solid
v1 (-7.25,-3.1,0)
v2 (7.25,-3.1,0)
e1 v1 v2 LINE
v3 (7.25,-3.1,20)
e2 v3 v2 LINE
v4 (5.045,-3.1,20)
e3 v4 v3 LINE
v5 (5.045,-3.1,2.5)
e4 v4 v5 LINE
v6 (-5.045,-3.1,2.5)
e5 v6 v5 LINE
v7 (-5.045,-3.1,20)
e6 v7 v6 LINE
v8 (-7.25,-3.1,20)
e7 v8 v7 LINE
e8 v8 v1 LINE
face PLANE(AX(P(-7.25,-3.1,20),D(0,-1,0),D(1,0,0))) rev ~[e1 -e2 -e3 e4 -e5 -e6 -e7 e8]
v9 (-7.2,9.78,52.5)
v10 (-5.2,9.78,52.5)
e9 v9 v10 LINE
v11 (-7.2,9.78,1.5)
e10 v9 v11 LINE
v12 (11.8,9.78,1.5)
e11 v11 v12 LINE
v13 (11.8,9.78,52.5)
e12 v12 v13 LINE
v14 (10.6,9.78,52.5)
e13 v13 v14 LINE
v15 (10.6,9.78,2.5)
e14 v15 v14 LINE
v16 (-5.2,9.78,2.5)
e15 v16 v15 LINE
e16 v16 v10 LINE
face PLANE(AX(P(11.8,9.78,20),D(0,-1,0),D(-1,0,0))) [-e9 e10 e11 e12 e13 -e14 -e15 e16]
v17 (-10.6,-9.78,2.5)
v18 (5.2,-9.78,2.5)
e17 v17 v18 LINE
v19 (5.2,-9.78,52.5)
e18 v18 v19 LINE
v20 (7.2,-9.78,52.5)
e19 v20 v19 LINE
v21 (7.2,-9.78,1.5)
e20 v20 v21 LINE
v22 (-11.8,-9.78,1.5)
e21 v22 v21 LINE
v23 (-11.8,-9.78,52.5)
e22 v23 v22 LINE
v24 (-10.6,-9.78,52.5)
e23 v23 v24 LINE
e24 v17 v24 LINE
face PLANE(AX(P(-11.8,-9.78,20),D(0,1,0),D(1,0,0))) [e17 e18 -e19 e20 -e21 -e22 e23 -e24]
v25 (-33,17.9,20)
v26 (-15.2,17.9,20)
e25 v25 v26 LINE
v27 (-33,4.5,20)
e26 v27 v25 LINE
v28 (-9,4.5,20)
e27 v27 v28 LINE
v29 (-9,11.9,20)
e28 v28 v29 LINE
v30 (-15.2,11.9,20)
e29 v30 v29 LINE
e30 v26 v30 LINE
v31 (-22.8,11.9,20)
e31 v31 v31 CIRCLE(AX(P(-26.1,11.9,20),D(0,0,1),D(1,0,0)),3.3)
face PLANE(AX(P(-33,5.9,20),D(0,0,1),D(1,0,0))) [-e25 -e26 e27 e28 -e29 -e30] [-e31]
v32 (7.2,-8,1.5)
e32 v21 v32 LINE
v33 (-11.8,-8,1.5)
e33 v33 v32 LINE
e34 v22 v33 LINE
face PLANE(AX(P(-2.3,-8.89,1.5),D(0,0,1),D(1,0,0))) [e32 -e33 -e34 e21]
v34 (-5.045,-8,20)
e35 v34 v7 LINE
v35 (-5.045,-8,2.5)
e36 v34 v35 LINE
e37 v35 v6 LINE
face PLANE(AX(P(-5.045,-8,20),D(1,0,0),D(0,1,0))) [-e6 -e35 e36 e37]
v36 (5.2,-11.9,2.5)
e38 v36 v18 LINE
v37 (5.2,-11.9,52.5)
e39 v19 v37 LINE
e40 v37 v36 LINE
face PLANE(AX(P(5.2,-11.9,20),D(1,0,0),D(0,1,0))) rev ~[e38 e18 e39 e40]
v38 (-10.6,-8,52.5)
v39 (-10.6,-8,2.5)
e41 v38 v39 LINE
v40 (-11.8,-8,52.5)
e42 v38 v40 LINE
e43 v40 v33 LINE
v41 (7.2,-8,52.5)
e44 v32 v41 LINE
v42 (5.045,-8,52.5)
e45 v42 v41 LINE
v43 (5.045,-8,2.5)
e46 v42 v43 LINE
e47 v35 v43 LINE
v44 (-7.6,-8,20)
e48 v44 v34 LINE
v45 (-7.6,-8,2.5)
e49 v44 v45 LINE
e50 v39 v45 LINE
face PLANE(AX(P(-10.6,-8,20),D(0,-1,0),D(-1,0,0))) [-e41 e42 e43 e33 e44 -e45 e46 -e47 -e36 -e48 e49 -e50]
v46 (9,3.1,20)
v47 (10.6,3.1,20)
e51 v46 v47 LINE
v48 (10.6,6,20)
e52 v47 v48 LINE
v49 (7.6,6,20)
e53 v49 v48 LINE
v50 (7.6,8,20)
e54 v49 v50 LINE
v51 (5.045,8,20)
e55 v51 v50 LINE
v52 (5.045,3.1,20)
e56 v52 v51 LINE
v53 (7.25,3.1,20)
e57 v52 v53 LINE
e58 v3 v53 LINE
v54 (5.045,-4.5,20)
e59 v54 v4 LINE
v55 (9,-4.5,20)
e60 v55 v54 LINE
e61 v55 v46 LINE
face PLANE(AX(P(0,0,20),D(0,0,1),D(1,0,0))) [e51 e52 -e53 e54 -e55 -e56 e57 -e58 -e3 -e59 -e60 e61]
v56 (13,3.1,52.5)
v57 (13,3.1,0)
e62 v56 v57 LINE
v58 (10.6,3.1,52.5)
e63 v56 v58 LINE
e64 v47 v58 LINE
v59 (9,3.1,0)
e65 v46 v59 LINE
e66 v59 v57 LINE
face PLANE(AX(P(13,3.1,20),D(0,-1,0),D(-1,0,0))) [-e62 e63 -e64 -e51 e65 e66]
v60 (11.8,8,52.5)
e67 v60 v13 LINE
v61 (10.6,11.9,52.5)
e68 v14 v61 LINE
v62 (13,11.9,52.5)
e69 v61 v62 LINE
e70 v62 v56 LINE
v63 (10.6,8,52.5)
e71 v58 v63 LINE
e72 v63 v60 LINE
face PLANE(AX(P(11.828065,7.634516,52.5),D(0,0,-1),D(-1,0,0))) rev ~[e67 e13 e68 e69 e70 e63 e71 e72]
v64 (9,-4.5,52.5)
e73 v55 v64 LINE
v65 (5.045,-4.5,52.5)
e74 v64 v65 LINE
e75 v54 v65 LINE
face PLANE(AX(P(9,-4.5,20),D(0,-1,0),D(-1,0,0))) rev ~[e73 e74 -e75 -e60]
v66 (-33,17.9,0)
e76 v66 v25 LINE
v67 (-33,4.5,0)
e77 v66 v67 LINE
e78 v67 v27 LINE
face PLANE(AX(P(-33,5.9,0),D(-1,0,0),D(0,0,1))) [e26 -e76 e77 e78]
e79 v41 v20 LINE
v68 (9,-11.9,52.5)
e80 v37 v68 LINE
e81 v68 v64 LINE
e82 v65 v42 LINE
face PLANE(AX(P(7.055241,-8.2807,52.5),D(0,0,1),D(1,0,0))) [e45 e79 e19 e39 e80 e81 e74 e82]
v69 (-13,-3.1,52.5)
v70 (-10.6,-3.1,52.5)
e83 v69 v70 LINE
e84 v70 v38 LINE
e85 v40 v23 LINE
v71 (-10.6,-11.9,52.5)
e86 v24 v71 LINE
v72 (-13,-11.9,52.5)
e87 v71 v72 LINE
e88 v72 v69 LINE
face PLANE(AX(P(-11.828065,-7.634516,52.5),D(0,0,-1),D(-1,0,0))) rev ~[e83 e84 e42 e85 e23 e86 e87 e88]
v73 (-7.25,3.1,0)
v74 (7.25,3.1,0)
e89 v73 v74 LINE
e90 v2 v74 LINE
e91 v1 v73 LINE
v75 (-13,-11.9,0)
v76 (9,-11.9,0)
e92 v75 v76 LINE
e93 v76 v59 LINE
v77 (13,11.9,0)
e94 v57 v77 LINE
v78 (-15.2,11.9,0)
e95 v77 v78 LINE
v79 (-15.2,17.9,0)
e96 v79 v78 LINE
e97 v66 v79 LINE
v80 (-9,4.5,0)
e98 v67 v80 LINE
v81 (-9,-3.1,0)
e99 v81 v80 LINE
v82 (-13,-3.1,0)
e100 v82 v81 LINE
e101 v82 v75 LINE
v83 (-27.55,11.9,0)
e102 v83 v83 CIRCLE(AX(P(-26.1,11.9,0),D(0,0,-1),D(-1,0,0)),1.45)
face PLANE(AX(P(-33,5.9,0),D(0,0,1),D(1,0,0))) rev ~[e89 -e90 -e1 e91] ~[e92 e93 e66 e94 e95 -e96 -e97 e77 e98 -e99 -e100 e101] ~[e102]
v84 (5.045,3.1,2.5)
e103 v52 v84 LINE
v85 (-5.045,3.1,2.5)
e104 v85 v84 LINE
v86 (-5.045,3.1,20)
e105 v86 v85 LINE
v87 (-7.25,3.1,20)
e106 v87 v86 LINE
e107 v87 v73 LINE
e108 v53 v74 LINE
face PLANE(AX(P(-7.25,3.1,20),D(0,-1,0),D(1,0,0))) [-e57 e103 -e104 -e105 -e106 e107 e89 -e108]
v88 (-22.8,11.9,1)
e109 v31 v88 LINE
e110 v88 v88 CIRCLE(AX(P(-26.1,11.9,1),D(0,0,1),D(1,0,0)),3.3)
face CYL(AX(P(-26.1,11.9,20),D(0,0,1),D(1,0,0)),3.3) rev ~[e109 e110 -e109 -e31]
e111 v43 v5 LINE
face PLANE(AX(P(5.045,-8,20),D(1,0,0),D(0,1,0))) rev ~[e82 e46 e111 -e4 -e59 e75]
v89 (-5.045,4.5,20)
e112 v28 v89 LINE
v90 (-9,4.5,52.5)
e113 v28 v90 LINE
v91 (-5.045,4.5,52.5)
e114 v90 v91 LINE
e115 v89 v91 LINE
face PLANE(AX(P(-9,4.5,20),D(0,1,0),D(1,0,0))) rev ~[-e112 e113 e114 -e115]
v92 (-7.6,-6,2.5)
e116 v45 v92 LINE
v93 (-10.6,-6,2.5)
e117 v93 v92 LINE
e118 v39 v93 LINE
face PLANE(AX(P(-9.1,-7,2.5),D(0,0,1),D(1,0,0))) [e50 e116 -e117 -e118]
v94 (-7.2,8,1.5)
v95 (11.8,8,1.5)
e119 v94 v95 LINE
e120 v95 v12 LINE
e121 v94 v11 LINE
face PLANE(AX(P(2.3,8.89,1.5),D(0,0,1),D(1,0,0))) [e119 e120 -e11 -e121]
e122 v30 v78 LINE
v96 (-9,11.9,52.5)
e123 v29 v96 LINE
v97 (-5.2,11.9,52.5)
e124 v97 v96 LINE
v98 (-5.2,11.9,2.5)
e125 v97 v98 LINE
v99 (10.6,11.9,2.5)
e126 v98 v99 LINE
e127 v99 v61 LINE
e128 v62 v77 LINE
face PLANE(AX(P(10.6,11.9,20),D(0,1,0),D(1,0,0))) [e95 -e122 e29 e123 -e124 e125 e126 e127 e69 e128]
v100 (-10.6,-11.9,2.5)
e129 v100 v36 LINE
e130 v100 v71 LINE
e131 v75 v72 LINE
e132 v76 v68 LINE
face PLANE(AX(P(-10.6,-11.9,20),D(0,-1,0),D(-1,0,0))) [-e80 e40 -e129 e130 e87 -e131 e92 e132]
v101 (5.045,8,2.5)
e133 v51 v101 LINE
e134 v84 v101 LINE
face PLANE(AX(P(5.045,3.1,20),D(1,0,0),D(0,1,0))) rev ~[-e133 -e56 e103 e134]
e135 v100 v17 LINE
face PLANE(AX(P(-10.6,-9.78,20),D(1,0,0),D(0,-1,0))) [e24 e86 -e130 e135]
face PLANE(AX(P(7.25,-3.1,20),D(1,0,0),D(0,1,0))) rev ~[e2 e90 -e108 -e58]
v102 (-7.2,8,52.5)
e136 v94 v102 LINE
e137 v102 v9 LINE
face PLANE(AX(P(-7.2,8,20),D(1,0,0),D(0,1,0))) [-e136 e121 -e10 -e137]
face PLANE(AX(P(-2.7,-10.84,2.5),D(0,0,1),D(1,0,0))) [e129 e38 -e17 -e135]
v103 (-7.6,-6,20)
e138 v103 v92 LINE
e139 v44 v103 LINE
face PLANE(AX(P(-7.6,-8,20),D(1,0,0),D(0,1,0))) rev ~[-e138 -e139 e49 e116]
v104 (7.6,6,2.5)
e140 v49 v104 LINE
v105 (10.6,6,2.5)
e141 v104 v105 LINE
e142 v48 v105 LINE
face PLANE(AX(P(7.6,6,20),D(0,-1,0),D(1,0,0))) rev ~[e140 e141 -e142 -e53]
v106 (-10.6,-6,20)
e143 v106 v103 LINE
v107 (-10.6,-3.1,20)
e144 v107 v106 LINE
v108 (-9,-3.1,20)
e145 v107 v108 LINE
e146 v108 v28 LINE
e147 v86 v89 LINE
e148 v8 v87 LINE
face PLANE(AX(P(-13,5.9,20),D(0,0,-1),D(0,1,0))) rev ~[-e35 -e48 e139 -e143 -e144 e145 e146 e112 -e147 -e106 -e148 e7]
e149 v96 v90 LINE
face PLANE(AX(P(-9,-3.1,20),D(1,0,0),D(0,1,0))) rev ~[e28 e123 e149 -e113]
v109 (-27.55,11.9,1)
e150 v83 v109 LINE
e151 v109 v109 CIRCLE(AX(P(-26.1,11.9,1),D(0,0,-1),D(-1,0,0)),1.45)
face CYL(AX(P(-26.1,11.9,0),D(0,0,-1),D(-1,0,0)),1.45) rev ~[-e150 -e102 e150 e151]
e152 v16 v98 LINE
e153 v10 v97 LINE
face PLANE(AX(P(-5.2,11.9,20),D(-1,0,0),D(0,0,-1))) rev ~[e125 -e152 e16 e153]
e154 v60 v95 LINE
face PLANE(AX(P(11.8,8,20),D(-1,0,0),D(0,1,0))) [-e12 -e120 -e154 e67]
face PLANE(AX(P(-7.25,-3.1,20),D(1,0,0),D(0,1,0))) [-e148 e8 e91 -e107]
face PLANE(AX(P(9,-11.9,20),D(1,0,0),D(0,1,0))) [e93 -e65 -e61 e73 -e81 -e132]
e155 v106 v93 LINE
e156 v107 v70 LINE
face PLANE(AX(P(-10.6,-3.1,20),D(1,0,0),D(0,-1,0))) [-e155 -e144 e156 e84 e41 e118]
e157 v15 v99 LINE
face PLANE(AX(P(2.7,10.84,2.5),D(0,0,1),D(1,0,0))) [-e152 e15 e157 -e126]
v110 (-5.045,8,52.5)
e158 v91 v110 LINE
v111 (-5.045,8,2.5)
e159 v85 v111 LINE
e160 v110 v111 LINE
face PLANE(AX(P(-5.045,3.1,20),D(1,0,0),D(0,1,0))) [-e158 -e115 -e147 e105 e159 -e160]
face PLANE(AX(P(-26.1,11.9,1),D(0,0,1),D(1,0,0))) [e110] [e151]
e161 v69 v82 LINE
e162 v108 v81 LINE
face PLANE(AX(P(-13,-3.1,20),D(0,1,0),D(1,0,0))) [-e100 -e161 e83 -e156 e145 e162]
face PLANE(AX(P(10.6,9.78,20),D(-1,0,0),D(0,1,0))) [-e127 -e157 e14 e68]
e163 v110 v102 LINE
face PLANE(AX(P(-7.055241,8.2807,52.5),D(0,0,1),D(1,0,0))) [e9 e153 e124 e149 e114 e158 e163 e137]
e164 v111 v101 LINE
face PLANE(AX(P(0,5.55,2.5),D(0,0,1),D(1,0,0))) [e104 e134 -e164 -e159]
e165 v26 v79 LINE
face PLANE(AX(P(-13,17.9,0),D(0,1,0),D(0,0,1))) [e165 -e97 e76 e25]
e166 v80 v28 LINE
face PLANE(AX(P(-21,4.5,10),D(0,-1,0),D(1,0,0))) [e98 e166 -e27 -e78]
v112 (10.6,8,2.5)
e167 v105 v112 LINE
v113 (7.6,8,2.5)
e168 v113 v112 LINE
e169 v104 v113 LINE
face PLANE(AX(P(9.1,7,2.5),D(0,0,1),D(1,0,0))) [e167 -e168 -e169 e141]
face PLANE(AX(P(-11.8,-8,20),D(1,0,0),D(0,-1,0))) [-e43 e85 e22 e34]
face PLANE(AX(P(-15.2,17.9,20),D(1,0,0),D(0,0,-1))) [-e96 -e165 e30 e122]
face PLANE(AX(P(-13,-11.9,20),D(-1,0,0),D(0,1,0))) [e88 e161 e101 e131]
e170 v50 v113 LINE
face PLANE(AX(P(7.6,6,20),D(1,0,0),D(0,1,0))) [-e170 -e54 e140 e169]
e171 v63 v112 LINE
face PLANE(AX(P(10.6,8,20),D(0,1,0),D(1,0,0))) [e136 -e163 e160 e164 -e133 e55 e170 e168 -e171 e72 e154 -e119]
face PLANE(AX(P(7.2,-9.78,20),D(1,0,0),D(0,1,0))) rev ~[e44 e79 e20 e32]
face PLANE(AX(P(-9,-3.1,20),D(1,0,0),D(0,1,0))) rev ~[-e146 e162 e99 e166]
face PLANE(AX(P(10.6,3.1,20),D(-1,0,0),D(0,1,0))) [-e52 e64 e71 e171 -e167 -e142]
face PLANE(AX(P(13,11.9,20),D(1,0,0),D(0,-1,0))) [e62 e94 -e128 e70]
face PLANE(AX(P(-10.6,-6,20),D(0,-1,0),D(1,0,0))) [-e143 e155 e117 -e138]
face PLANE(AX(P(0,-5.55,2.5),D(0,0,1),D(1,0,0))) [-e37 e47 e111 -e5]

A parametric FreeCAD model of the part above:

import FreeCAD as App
import Part
import Sketcher

doc = App.newDocument("Part")
body = doc.addObject("PartDesign::Body", "Body")

# Sketch on XY plane
sketch1 = body.newObject("Sketcher::SketchObject", "Sketch")
sketch1.AttachmentSupport = (doc.getObject("XY_Plane"), [""])
sketch1.MapMode = "FlatFace"
sketch1.addGeometry(Part.LineSegment(App.Vector(-13, 11.9, 0), App.Vector(-13, -11.9, 0)), False)
sketch1.addGeometry(Part.LineSegment(App.Vector(-13, -11.9, 0), App.Vector(13, -11.9, 0)), False)
sketch1.addGeometry(Part.LineSegment(App.Vector(13, -11.9, 0), App.Vector(13, 11.9, 0)), False)
sketch1.addGeometry(Part.LineSegment(App.Vector(13, 11.9, 0), App.Vector(-13, 11.9, 0)), False)
sketch1.addConstraint(Sketcher.Constraint("Coincident", 0, 2, 1, 1))
sketch1.addConstraint(Sketcher.Constraint("Coincident", 1, 2, 2, 1))
sketch1.addConstraint(Sketcher.Constraint("Coincident", 2, 2, 3, 1))
sketch1.addConstraint(Sketcher.Constraint("Coincident", 3, 2, 0, 1))
sketch1.addConstraint(Sketcher.Constraint("Vertical", 0))
sketch1.addConstraint(Sketcher.Constraint("Horizontal", 1))
sketch1.addConstraint(Sketcher.Constraint("Vertical", 2))
sketch1.addConstraint(Sketcher.Constraint("Horizontal", 3))
sketch1.addConstraint(Sketcher.Constraint("Symmetric", 0, 2, 2, 2, -1, 1))
sketch1.addConstraint(Sketcher.Constraint("DistanceX", 1, 1, 1, 2, 26.0))
sketch1.addConstraint(Sketcher.Constraint("DistanceY", 0, 2, 0, 1, 23.8))
pad1 = body.newObject("PartDesign::Pad", "Pad")
pad1.Profile = sketch1
pad1.Length = 20

# Sketch on XY plane
sketch2 = body.newObject("Sketcher::SketchObject", "Sketch001")
sketch2.AttachmentSupport = (doc.getObject("XY_Plane"), [""])
sketch2.MapMode = "FlatFace"
sketch2.AttachmentOffset = App.Placement(App.Vector(0, 0, 20), App.Rotation())
sketch2.addGeometry(Part.LineSegment(App.Vector(-7.25, 3.1, 0), App.Vector(-7.25, -3.1, 0)), False)
sketch2.addGeometry(Part.LineSegment(App.Vector(-7.25, -3.1, 0), App.Vector(7.25, -3.1, 0)), False)
sketch2.addGeometry(Part.LineSegment(App.Vector(7.25, -3.1, 0), App.Vector(7.25, 3.1, 0)), False)
sketch2.addGeometry(Part.LineSegment(App.Vector(7.25, 3.1, 0), App.Vector(-7.25, 3.1, 0)), False)
sketch2.addConstraint(Sketcher.Constraint("Coincident", 0, 2, 1, 1))
sketch2.addConstraint(Sketcher.Constraint("Coincident", 1, 2, 2, 1))
sketch2.addConstraint(Sketcher.Constraint("Coincident", 2, 2, 3, 1))
sketch2.addConstraint(Sketcher.Constraint("Coincident", 3, 2, 0, 1))
sketch2.addConstraint(Sketcher.Constraint("Vertical", 0))
sketch2.addConstraint(Sketcher.Constraint("Horizontal", 1))
sketch2.addConstraint(Sketcher.Constraint("Vertical", 2))
sketch2.addConstraint(Sketcher.Constraint("Horizontal", 3))
sketch2.addConstraint(Sketcher.Constraint("Symmetric", 0, 2, 2, 2, -1, 1))
sketch2.addConstraint(Sketcher.Constraint("DistanceX", 1, 1, 1, 2, 14.5))
sketch2.addConstraint(Sketcher.Constraint("DistanceY", 0, 2, 0, 1, 6.2))
pocket1 = body.newObject("PartDesign::Pocket", "Pocket")
pocket1.Profile = sketch2
pocket1.Length = 20

# Sketch on XY plane
sketch3 = body.newObject("Sketcher::SketchObject", "Sketch002")
sketch3.AttachmentSupport = (doc.getObject("XY_Plane"), [""])
sketch3.MapMode = "FlatFace"
sketch3.AttachmentOffset = App.Placement(App.Vector(0, 0, 20), App.Rotation())
sketch3.addGeometry(Part.LineSegment(App.Vector(-5.045, 8, 0), App.Vector(-5.045, 3.1, 0)), False)
sketch3.addGeometry(Part.LineSegment(App.Vector(-5.045, 3.1, 0), App.Vector(5.045, 3.1, 0)), False)
sketch3.addGeometry(Part.LineSegment(App.Vector(5.045, 3.1, 0), App.Vector(5.045, 8, 0)), False)
sketch3.addGeometry(Part.LineSegment(App.Vector(5.045, 8, 0), App.Vector(-5.045, 8, 0)), False)
sketch3.addConstraint(Sketcher.Constraint("Coincident", 0, 2, 1, 1))
sketch3.addConstraint(Sketcher.Constraint("Coincident", 1, 2, 2, 1))
sketch3.addConstraint(Sketcher.Constraint("Coincident", 2, 2, 3, 1))
sketch3.addConstraint(Sketcher.Constraint("Coincident", 3, 2, 0, 1))
sketch3.addConstraint(Sketcher.Constraint("Vertical", 0))
sketch3.addConstraint(Sketcher.Constraint("Horizontal", 1))
sketch3.addConstraint(Sketcher.Constraint("Vertical", 2))
sketch3.addConstraint(Sketcher.Constraint("Horizontal", 3))
sketch3.addConstraint(Sketcher.Constraint("DistanceY", 0, 2, 0, 1, 4.9))
sketch3.addConstraint(Sketcher.Constraint("DistanceY", -1, 1, 2, 2, 8.0))
sketch3.addConstraint(Sketcher.Constraint("DistanceX", 1, 1, 1, 2, 10.09))
sketch3.addConstraint(Sketcher.Constraint("DistanceX", 0, 2, -1, 1, 5.045))
pocket2 = body.newObject("PartDesign::Pocket", "Pocket001")
pocket2.Profile = sketch3
pocket2.Length = 17.5

# Sketch on XY plane
sketch4 = body.newObject("Sketcher::SketchObject", "Sketch003")
sketch4.AttachmentSupport = (doc.getObject("XY_Plane"), [""])
sketch4.MapMode = "FlatFace"
sketch4.AttachmentOffset = App.Placement(App.Vector(0, 0, 20), App.Rotation())
sketch4.addGeometry(Part.LineSegment(App.Vector(-5.045, -3.1, 0), App.Vector(-5.045, -8, 0)), False)
sketch4.addGeometry(Part.LineSegment(App.Vector(-5.045, -8, 0), App.Vector(5.045, -8, 0)), False)
sketch4.addGeometry(Part.LineSegment(App.Vector(5.045, -8, 0), App.Vector(5.045, -3.1, 0)), False)
sketch4.addGeometry(Part.LineSegment(App.Vector(5.045, -3.1, 0), App.Vector(-5.045, -3.1, 0)), False)
sketch4.addConstraint(Sketcher.Constraint("Coincident", 0, 2, 1, 1))
sketch4.addConstraint(Sketcher.Constraint("Coincident", 1, 2, 2, 1))
sketch4.addConstraint(Sketcher.Constraint("Coincident", 2, 2, 3, 1))
sketch4.addConstraint(Sketcher.Constraint("Coincident", 3, 2, 0, 1))
sketch4.addConstraint(Sketcher.Constraint("Vertical", 0))
sketch4.addConstraint(Sketcher.Constraint("Horizontal", 1))
sketch4.addConstraint(Sketcher.Constraint("Vertical", 2))
sketch4.addConstraint(Sketcher.Constraint("Horizontal", 3))
sketch4.addConstraint(Sketcher.Constraint("DistanceY", 0, 2, 0, 1, 4.9))
sketch4.addConstraint(Sketcher.Constraint("DistanceY", 0, 2, -1, 1, 8.0))
sketch4.addConstraint(Sketcher.Constraint("DistanceX", 1, 1, 1, 2, 10.09))
sketch4.addConstraint(Sketcher.Constraint("DistanceX", 0, 2, -1, 1, 5.045))
pocket3 = body.newObject("PartDesign::Pocket", "Pocket002")
pocket3.Profile = sketch4
pocket3.Length = 17.5

# Sketch on XY plane
sketch5 = body.newObject("Sketcher::SketchObject", "Sketch004")
sketch5.AttachmentSupport = (doc.getObject("XY_Plane"), [""])
sketch5.MapMode = "FlatFace"
sketch5.AttachmentOffset = App.Placement(App.Vector(0, 0, 20), App.Rotation())
sketch5.addGeometry(Part.LineSegment(App.Vector(7.6, 8, 0), App.Vector(7.6, 6, 0)), False)
sketch5.addGeometry(Part.LineSegment(App.Vector(7.6, 6, 0), App.Vector(10.6, 6, 0)), False)
sketch5.addGeometry(Part.LineSegment(App.Vector(10.6, 6, 0), App.Vector(10.6, 8, 0)), False)
sketch5.addGeometry(Part.LineSegment(App.Vector(10.6, 8, 0), App.Vector(7.6, 8, 0)), False)
sketch5.addConstraint(Sketcher.Constraint("Coincident", 0, 2, 1, 1))
sketch5.addConstraint(Sketcher.Constraint("Coincident", 1, 2, 2, 1))
sketch5.addConstraint(Sketcher.Constraint("Coincident", 2, 2, 3, 1))
sketch5.addConstraint(Sketcher.Constraint("Coincident", 3, 2, 0, 1))
sketch5.addConstraint(Sketcher.Constraint("Vertical", 0))
sketch5.addConstraint(Sketcher.Constraint("Horizontal", 1))
sketch5.addConstraint(Sketcher.Constraint("Vertical", 2))
sketch5.addConstraint(Sketcher.Constraint("Horizontal", 3))
sketch5.addConstraint(Sketcher.Constraint("DistanceX", 1, 1, 1, 2, 3.0))
sketch5.addConstraint(Sketcher.Constraint("DistanceY", 0, 2, 0, 1, 2.0))
sketch5.addConstraint(Sketcher.Constraint("DistanceY", -1, 1, 0, 2, 6.0))
sketch5.addConstraint(Sketcher.Constraint("DistanceX", -1, 1, 0, 2, 7.6))
pocket4 = body.newObject("PartDesign::Pocket", "Pocket003")
pocket4.Profile = sketch5
pocket4.Length = 17.5

# Sketch on XY plane
sketch6 = body.newObject("Sketcher::SketchObject", "Sketch005")
sketch6.AttachmentSupport = (doc.getObject("XY_Plane"), [""])
sketch6.MapMode = "FlatFace"
sketch6.AttachmentOffset = App.Placement(App.Vector(0, 0, 20), App.Rotation())
sketch6.addGeometry(Part.LineSegment(App.Vector(-10.6, -6, 0), App.Vector(-10.6, -8, 0)), False)
sketch6.addGeometry(Part.LineSegment(App.Vector(-10.6, -8, 0), App.Vector(-7.6, -8, 0)), False)
sketch6.addGeometry(Part.LineSegment(App.Vector(-7.6, -8, 0), App.Vector(-7.6, -6, 0)), False)
sketch6.addGeometry(Part.LineSegment(App.Vector(-7.6, -6, 0), App.Vector(-10.6, -6, 0)), False)
sketch6.addConstraint(Sketcher.Constraint("Coincident", 0, 2, 1, 1))
sketch6.addConstraint(Sketcher.Constraint("Coincident", 1, 2, 2, 1))
sketch6.addConstraint(Sketcher.Constraint("Coincident", 2, 2, 3, 1))
sketch6.addConstraint(Sketcher.Constraint("Coincident", 3, 2, 0, 1))
sketch6.addConstraint(Sketcher.Constraint("Vertical", 0))
sketch6.addConstraint(Sketcher.Constraint("Horizontal", 1))
sketch6.addConstraint(Sketcher.Constraint("Vertical", 2))
sketch6.addConstraint(Sketcher.Constraint("Horizontal", 3))
sketch6.addConstraint(Sketcher.Constraint("DistanceX", 1, 1, 1, 2, 3.0))
sketch6.addConstraint(Sketcher.Constraint("DistanceY", 0, 2, 0, 1, 2.0))
sketch6.addConstraint(Sketcher.Constraint("DistanceY", 0, 2, -1, 1, 8.0))
sketch6.addConstraint(Sketcher.Constraint("DistanceX", 0, 2, -1, 1, 10.6))
pocket5 = body.newObject("PartDesign::Pocket", "Pocket004")
pocket5.Profile = sketch6
pocket5.Length = 17.5

# Sketch on XY plane
sketch7 = body.newObject("Sketcher::SketchObject", "Sketch006")
sketch7.AttachmentSupport = (doc.getObject("XY_Plane"), [""])
sketch7.MapMode = "FlatFace"
sketch7.AttachmentOffset = App.Placement(App.Vector(0, 0, 20), App.Rotation())
sketch7.addGeometry(Part.LineSegment(App.Vector(-11.8, -8, 0), App.Vector(-11.8, -9.78, 0)), False)
sketch7.addGeometry(Part.LineSegment(App.Vector(-11.8, -9.78, 0), App.Vector(7.2, -9.78, 0)), False)
sketch7.addGeometry(Part.LineSegment(App.Vector(7.2, -9.78, 0), App.Vector(7.2, -8, 0)), False)
sketch7.addGeometry(Part.LineSegment(App.Vector(7.2, -8, 0), App.Vector(-11.8, -8, 0)), False)
sketch7.addConstraint(Sketcher.Constraint("Coincident", 0, 2, 1, 1))
sketch7.addConstraint(Sketcher.Constraint("Coincident", 1, 2, 2, 1))
sketch7.addConstraint(Sketcher.Constraint("Coincident", 2, 2, 3, 1))
sketch7.addConstraint(Sketcher.Constraint("Coincident", 3, 2, 0, 1))
sketch7.addConstraint(Sketcher.Constraint("Vertical", 0))
sketch7.addConstraint(Sketcher.Constraint("Horizontal", 1))
sketch7.addConstraint(Sketcher.Constraint("Vertical", 2))
sketch7.addConstraint(Sketcher.Constraint("Horizontal", 3))
sketch7.addConstraint(Sketcher.Constraint("DistanceX", 1, 1, 1, 2, 19.0))
sketch7.addConstraint(Sketcher.Constraint("DistanceY", 2, 2, -1, 1, 8.0))
sketch7.addConstraint(Sketcher.Constraint("DistanceY", 0, 2, 0, 1, 1.78))
sketch7.addConstraint(Sketcher.Constraint("DistanceX", 0, 2, -1, 1, 11.8))
pocket6 = body.newObject("PartDesign::Pocket", "Pocket005")
pocket6.Profile = sketch7
pocket6.Length = 18.5

# Sketch on XY plane
sketch8 = body.newObject("Sketcher::SketchObject", "Sketch007")
sketch8.AttachmentSupport = (doc.getObject("XY_Plane"), [""])
sketch8.MapMode = "FlatFace"
sketch8.AttachmentOffset = App.Placement(App.Vector(0, 0, 20), App.Rotation())
sketch8.addGeometry(Part.LineSegment(App.Vector(-7.2, 9.78, 0), App.Vector(-7.2, 8, 0)), False)
sketch8.addGeometry(Part.LineSegment(App.Vector(-7.2, 8, 0), App.Vector(11.8, 8, 0)), False)
sketch8.addGeometry(Part.LineSegment(App.Vector(11.8, 8, 0), App.Vector(11.8, 9.78, 0)), False)
sketch8.addGeometry(Part.LineSegment(App.Vector(11.8, 9.78, 0), App.Vector(-7.2, 9.78, 0)), False)
sketch8.addConstraint(Sketcher.Constraint("Coincident", 0, 2, 1, 1))
sketch8.addConstraint(Sketcher.Constraint("Coincident", 1, 2, 2, 1))
sketch8.addConstraint(Sketcher.Constraint("Coincident", 2, 2, 3, 1))
sketch8.addConstraint(Sketcher.Constraint("Coincident", 3, 2, 0, 1))
sketch8.addConstraint(Sketcher.Constraint("Vertical", 0))
sketch8.addConstraint(Sketcher.Constraint("Horizontal", 1))
sketch8.addConstraint(Sketcher.Constraint("Vertical", 2))
sketch8.addConstraint(Sketcher.Constraint("Horizontal", 3))
sketch8.addConstraint(Sketcher.Constraint("DistanceX", 1, 1, 1, 2, 19.0))
sketch8.addConstraint(Sketcher.Constraint("DistanceY", -1, 1, 0, 2, 8.0))
sketch8.addConstraint(Sketcher.Constraint("DistanceY", 0, 2, 0, 1, 1.78))
sketch8.addConstraint(Sketcher.Constraint("DistanceX", 0, 2, -1, 1, 7.2))
pocket7 = body.newObject("PartDesign::Pocket", "Pocket006")
pocket7.Profile = sketch8
pocket7.Length = 18.5

# Sketch on XY plane
sketch9 = body.newObject("Sketcher::SketchObject", "Sketch008")
sketch9.AttachmentSupport = (doc.getObject("XY_Plane"), [""])
sketch9.MapMode = "FlatFace"
sketch9.AttachmentOffset = App.Placement(App.Vector(0, 0, 20), App.Rotation())
sketch9.addGeometry(Part.LineSegment(App.Vector(-5.2, 11.9, 0), App.Vector(-5.2, 9.78, 0)), False)
sketch9.addGeometry(Part.LineSegment(App.Vector(-5.2, 9.78, 0), App.Vector(10.6, 9.78, 0)), False)
sketch9.addGeometry(Part.LineSegment(App.Vector(10.6, 9.78, 0), App.Vector(10.6, 11.9, 0)), False)
sketch9.addGeometry(Part.LineSegment(App.Vector(10.6, 11.9, 0), App.Vector(-5.2, 11.9, 0)), False)
sketch9.addConstraint(Sketcher.Constraint("Coincident", 0, 2, 1, 1))
sketch9.addConstraint(Sketcher.Constraint("Coincident", 1, 2, 2, 1))
sketch9.addConstraint(Sketcher.Constraint("Coincident", 2, 2, 3, 1))
sketch9.addConstraint(Sketcher.Constraint("Coincident", 3, 2, 0, 1))
sketch9.addConstraint(Sketcher.Constraint("Vertical", 0))
sketch9.addConstraint(Sketcher.Constraint("Horizontal", 1))
sketch9.addConstraint(Sketcher.Constraint("Vertical", 2))
sketch9.addConstraint(Sketcher.Constraint("Horizontal", 3))
sketch9.addConstraint(Sketcher.Constraint("DistanceX", 1, 1, 1, 2, 15.8))
sketch9.addConstraint(Sketcher.Constraint("DistanceY", 0, 2, 0, 1, 2.12))
sketch9.addConstraint(Sketcher.Constraint("DistanceX", 0, 2, -1, 1, 5.2))
sketch9.addConstraint(Sketcher.Constraint("DistanceY", -1, 1, 2, 2, 11.9))
pocket8 = body.newObject("PartDesign::Pocket", "Pocket007")
pocket8.Profile = sketch9
pocket8.Length = 17.5

# Sketch on XY plane
sketch10 = body.newObject("Sketcher::SketchObject", "Sketch009")
sketch10.AttachmentSupport = (doc.getObject("XY_Plane"), [""])
sketch10.MapMode = "FlatFace"
sketch10.AttachmentOffset = App.Placement(App.Vector(0, 0, 20), App.Rotation())
sketch10.addGeometry(Part.LineSegment(App.Vector(-10.6, -9.78, 0), App.Vector(-10.6, -11.9, 0)), False)
sketch10.addGeometry(Part.LineSegment(App.Vector(-10.6, -11.9, 0), App.Vector(5.2, -11.9, 0)), False)
sketch10.addGeometry(Part.LineSegment(App.Vector(5.2, -11.9, 0), App.Vector(5.2, -9.78, 0)), False)
sketch10.addGeometry(Part.LineSegment(App.Vector(5.2, -9.78, 0), App.Vector(-10.6, -9.78, 0)), False)
sketch10.addConstraint(Sketcher.Constraint("Coincident", 0, 2, 1, 1))
sketch10.addConstraint(Sketcher.Constraint("Coincident", 1, 2, 2, 1))
sketch10.addConstraint(Sketcher.Constraint("Coincident", 2, 2, 3, 1))
sketch10.addConstraint(Sketcher.Constraint("Coincident", 3, 2, 0, 1))
sketch10.addConstraint(Sketcher.Constraint("Vertical", 0))
sketch10.addConstraint(Sketcher.Constraint("Horizontal", 1))
sketch10.addConstraint(Sketcher.Constraint("Vertical", 2))
sketch10.addConstraint(Sketcher.Constraint("Horizontal", 3))
sketch10.addConstraint(Sketcher.Constraint("DistanceX", 1, 1, 1, 2, 15.8))
sketch10.addConstraint(Sketcher.Constraint("DistanceY", 0, 2, 0, 1, 2.12))
sketch10.addConstraint(Sketcher.Constraint("DistanceX", 0, 2, -1, 1, 10.6))
sketch10.addConstraint(Sketcher.Constraint("DistanceY", 0, 2, -1, 1, 11.9))
pocket9 = body.newObject("PartDesign::Pocket", "Pocket008")
pocket9.Profile = sketch10
pocket9.Length = 17.5

# Sketch on XZ plane
sketch11 = body.newObject("Sketcher::SketchObject", "Sketch010")
sketch11.AttachmentSupport = (doc.getObject("XZ_Plane"), [""])
sketch11.MapMode = "FlatFace"
sketch11.AttachmentOffset = App.Placement(App.Vector(0, 0, -11.9), App.Rotation())
sketch11.addGeometry(Part.LineSegment(App.Vector(-13, 0, 0), App.Vector(-13, 20, 0)), False)
sketch11.addGeometry(Part.LineSegment(App.Vector(-13, 20, 0), App.Vector(-5.2, 20, 0)), False)
sketch11.addGeometry(Part.LineSegment(App.Vector(-5.2, 20, 0), App.Vector(-5.2, 0, 0)), False)
sketch11.addGeometry(Part.LineSegment(App.Vector(-5.2, 0, 0), App.Vector(-13, 0, 0)), False)
sketch11.addConstraint(Sketcher.Constraint("Coincident", 0, 2, 1, 1))
sketch11.addConstraint(Sketcher.Constraint("Coincident", 1, 2, 2, 1))
sketch11.addConstraint(Sketcher.Constraint("Coincident", 2, 2, 3, 1))
sketch11.addConstraint(Sketcher.Constraint("Coincident", 3, 2, 0, 1))
sketch11.addConstraint(Sketcher.Constraint("Vertical", 0))
sketch11.addConstraint(Sketcher.Constraint("Horizontal", 1))
sketch11.addConstraint(Sketcher.Constraint("Vertical", 2))
sketch11.addConstraint(Sketcher.Constraint("Horizontal", 3))
sketch11.addConstraint(Sketcher.Constraint("PointOnObject", 2, 2, -1))
sketch11.addConstraint(Sketcher.Constraint("DistanceY", 0, 1, 0, 2, 20.0))
sketch11.addConstraint(Sketcher.Constraint("DistanceX", 1, 1, 1, 2, 7.8))
sketch11.addConstraint(Sketcher.Constraint("DistanceX", 0, 2, -1, 1, 13.0))
pad2 = body.newObject("PartDesign::Pad", "Pad001")
pad2.Profile = sketch11
pad2.Length = 6
pad2.Reversed = True

# Sketch on YZ plane
sketch12 = body.newObject("Sketcher::SketchObject", "Sketch011")
sketch12.AttachmentSupport = (doc.getObject("YZ_Plane"), [""])
sketch12.MapMode = "FlatFace"
sketch12.AttachmentOffset = App.Placement(App.Vector(0, 0, -13), App.Rotation())
sketch12.addGeometry(Part.LineSegment(App.Vector(17.9, 0, 0), App.Vector(5.9, 0, 0)), False)
sketch12.addGeometry(Part.LineSegment(App.Vector(5.9, 0, 0), App.Vector(5.9, 20, 0)), False)
sketch12.addGeometry(Part.LineSegment(App.Vector(5.9, 20, 0), App.Vector(17.9, 20, 0)), False)
sketch12.addGeometry(Part.LineSegment(App.Vector(17.9, 20, 0), App.Vector(17.9, 0, 0)), False)
sketch12.addConstraint(Sketcher.Constraint("Coincident", 0, 2, 1, 1))
sketch12.addConstraint(Sketcher.Constraint("Coincident", 1, 2, 2, 1))
sketch12.addConstraint(Sketcher.Constraint("Coincident", 2, 2, 3, 1))
sketch12.addConstraint(Sketcher.Constraint("Coincident", 3, 2, 0, 1))
sketch12.addConstraint(Sketcher.Constraint("Horizontal", 0))
sketch12.addConstraint(Sketcher.Constraint("Vertical", 1))
sketch12.addConstraint(Sketcher.Constraint("Horizontal", 2))
sketch12.addConstraint(Sketcher.Constraint("Vertical", 3))
sketch12.addConstraint(Sketcher.Constraint("PointOnObject", 0, 2, -1))
sketch12.addConstraint(Sketcher.Constraint("DistanceX", 0, 2, 0, 1, 12.0))
sketch12.addConstraint(Sketcher.Constraint("DistanceY", 1, 1, 1, 2, 20.0))
sketch12.addConstraint(Sketcher.Constraint("DistanceX", -1, 1, 0, 2, 5.9))
pad3 = body.newObject("PartDesign::Pad", "Pad002")
pad3.Profile = sketch12
pad3.Length = 20
pad3.Reversed = True

# Sketch on XY plane
sketch13 = body.newObject("Sketcher::SketchObject", "Sketch012")
sketch13.AttachmentSupport = (doc.getObject("XY_Plane"), [""])
sketch13.MapMode = "FlatFace"
sketch13.AttachmentOffset = App.Placement(App.Vector(0, 0, 20), App.Rotation())
sketch13.addGeometry(Part.Circle(App.Vector(-26.1, 11.9, 0), App.Vector(0, 0, 1), 3.3), False)
sketch13.addConstraint(Sketcher.Constraint("Diameter", 0, 6.6))
sketch13.addConstraint(Sketcher.Constraint("DistanceX", 0, 3, -1, 1, 26.1))
sketch13.addConstraint(Sketcher.Constraint("DistanceY", -1, 1, 0, 3, 11.9))
pocket10 = body.newObject("PartDesign::Pocket", "Pocket009")
pocket10.Profile = sketch13
pocket10.Length = 19

# Sketch on XY plane
sketch14 = body.newObject("Sketcher::SketchObject", "Sketch013")
sketch14.AttachmentSupport = (doc.getObject("XY_Plane"), [""])
sketch14.MapMode = "FlatFace"
sketch14.AttachmentOffset = App.Placement(App.Vector(0, 0, 20), App.Rotation())
sketch14.addGeometry(Part.LineSegment(App.Vector(9, 3.1, 0), App.Vector(9, -11.9, 0)), False)
sketch14.addGeometry(Part.LineSegment(App.Vector(9, -11.9, 0), App.Vector(13, -11.9, 0)), False)
sketch14.addGeometry(Part.LineSegment(App.Vector(13, -11.9, 0), App.Vector(13, 3.1, 0)), False)
sketch14.addGeometry(Part.LineSegment(App.Vector(13, 3.1, 0), App.Vector(9, 3.1, 0)), False)
sketch14.addConstraint(Sketcher.Constraint("Coincident", 0, 2, 1, 1))
sketch14.addConstraint(Sketcher.Constraint("Coincident", 1, 2, 2, 1))
sketch14.addConstraint(Sketcher.Constraint("Coincident", 2, 2, 3, 1))
sketch14.addConstraint(Sketcher.Constraint("Coincident", 3, 2, 0, 1))
sketch14.addConstraint(Sketcher.Constraint("Vertical", 0))
sketch14.addConstraint(Sketcher.Constraint("Horizontal", 1))
sketch14.addConstraint(Sketcher.Constraint("Vertical", 2))
sketch14.addConstraint(Sketcher.Constraint("Horizontal", 3))
sketch14.addConstraint(Sketcher.Constraint("DistanceX", 1, 1, 1, 2, 4.0))
sketch14.addConstraint(Sketcher.Constraint("DistanceY", 0, 2, 0, 1, 15.0))
sketch14.addConstraint(Sketcher.Constraint("DistanceX", -1, 1, 0, 2, 9.0))
sketch14.addConstraint(Sketcher.Constraint("DistanceY", 0, 2, -1, 1, 11.9))
pocket11 = body.newObject("PartDesign::Pocket", "Pocket010")
pocket11.Profile = sketch14
pocket11.Length = 20

# Sketch on XY plane
sketch15 = body.newObject("Sketcher::SketchObject", "Sketch014")
sketch15.AttachmentSupport = (doc.getObject("XY_Plane"), [""])
sketch15.MapMode = "FlatFace"
sketch15.AttachmentOffset = App.Placement(App.Vector(0, 0, 20), App.Rotation())
sketch15.addGeometry(Part.LineSegment(App.Vector(-13, 5.9, 0), App.Vector(-13, -3.1, 0)), False)
sketch15.addGeometry(Part.LineSegment(App.Vector(-13, -3.1, 0), App.Vector(-9, -3.1, 0)), False)
sketch15.addGeometry(Part.LineSegment(App.Vector(-9, -3.1, 0), App.Vector(-9, 5.9, 0)), False)
sketch15.addGeometry(Part.LineSegment(App.Vector(-9, 5.9, 0), App.Vector(-13, 5.9, 0)), False)
sketch15.addConstraint(Sketcher.Constraint("Coincident", 0, 2, 1, 1))
sketch15.addConstraint(Sketcher.Constraint("Coincident", 1, 2, 2, 1))
sketch15.addConstraint(Sketcher.Constraint("Coincident", 2, 2, 3, 1))
sketch15.addConstraint(Sketcher.Constraint("Coincident", 3, 2, 0, 1))
sketch15.addConstraint(Sketcher.Constraint("Vertical", 0))
sketch15.addConstraint(Sketcher.Constraint("Horizontal", 1))
sketch15.addConstraint(Sketcher.Constraint("Vertical", 2))
sketch15.addConstraint(Sketcher.Constraint("Horizontal", 3))
sketch15.addConstraint(Sketcher.Constraint("DistanceX", 1, 1, 1, 2, 4.0))
sketch15.addConstraint(Sketcher.Constraint("DistanceY", 0, 2, 0, 1, 9.0))
sketch15.addConstraint(Sketcher.Constraint("DistanceX", 0, 2, -1, 1, 13.0))
sketch15.addConstraint(Sketcher.Constraint("DistanceY", 0, 2, -1, 1, 3.1))
pocket12 = body.newObject("PartDesign::Pocket", "Pocket011")
pocket12.Profile = sketch15
pocket12.Length = 20

# Sketch on XY plane
sketch16 = body.newObject("Sketcher::SketchObject", "Sketch015")
sketch16.AttachmentSupport = (doc.getObject("XY_Plane"), [""])
sketch16.MapMode = "FlatFace"
sketch16.AttachmentOffset = App.Placement(App.Vector(0, 0, 20), App.Rotation())
sketch16.addGeometry(Part.LineSegment(App.Vector(-13, -3.1, 0), App.Vector(-13, -11.9, 0)), False)
sketch16.addGeometry(Part.LineSegment(App.Vector(-13, -11.9, 0), App.Vector(-10.6, -11.9, 0)), False)
sketch16.addGeometry(Part.LineSegment(App.Vector(-10.6, -11.9, 0), App.Vector(-10.6, -9.78, 0)), False)
sketch16.addGeometry(Part.LineSegment(App.Vector(-10.6, -9.78, 0), App.Vector(-11.8, -9.78, 0)), False)
sketch16.addGeometry(Part.LineSegment(App.Vector(-11.8, -9.78, 0), App.Vector(-11.8, -8, 0)), False)
sketch16.addGeometry(Part.LineSegment(App.Vector(-11.8, -8, 0), App.Vector(-10.6, -8, 0)), False)
sketch16.addGeometry(Part.LineSegment(App.Vector(-10.6, -8, 0), App.Vector(-10.6, -3.1, 0)), False)
sketch16.addGeometry(Part.LineSegment(App.Vector(-10.6, -3.1, 0), App.Vector(-13, -3.1, 0)), False)
sketch16.addGeometry(Part.LineSegment(App.Vector(5.2, -9.78, 0), App.Vector(5.2, -11.9, 0)), False)
sketch16.addGeometry(Part.LineSegment(App.Vector(5.2, -11.9, 0), App.Vector(9, -11.9, 0)), False)
sketch16.addGeometry(Part.LineSegment(App.Vector(9, -11.9, 0), App.Vector(9, -4.5, 0)), False)
sketch16.addGeometry(Part.LineSegment(App.Vector(9, -4.5, 0), App.Vector(5.045, -4.5, 0)), False)
sketch16.addGeometry(Part.LineSegment(App.Vector(5.045, -4.5, 0), App.Vector(5.045, -8, 0)), False)
sketch16.addGeometry(Part.LineSegment(App.Vector(5.045, -8, 0), App.Vector(7.2, -8, 0)), False)
sketch16.addGeometry(Part.LineSegment(App.Vector(7.2, -8, 0), App.Vector(7.2, -9.78, 0)), False)
sketch16.addGeometry(Part.LineSegment(App.Vector(7.2, -9.78, 0), App.Vector(5.2, -9.78, 0)), False)
sketch16.addConstraint(Sketcher.Constraint("Coincident", 0, 2, 1, 1))
sketch16.addConstraint(Sketcher.Constraint("Coincident", 1, 2, 2, 1))
sketch16.addConstraint(Sketcher.Constraint("Coincident", 2, 2, 3, 1))
sketch16.addConstraint(Sketcher.Constraint("Coincident", 3, 2, 4, 1))
sketch16.addConstraint(Sketcher.Constraint("Coincident", 4, 2, 5, 1))
sketch16.addConstraint(Sketcher.Constraint("Coincident", 5, 2, 6, 1))
sketch16.addConstraint(Sketcher.Constraint("Coincident", 6, 2, 7, 1))
sketch16.addConstraint(Sketcher.Constraint("Coincident", 7, 2, 0, 1))
sketch16.addConstraint(Sketcher.Constraint("Coincident", 8, 2, 9, 1))
sketch16.addConstraint(Sketcher.Constraint("Coincident", 9, 2, 10, 1))
sketch16.addConstraint(Sketcher.Constraint("Coincident", 10, 2, 11, 1))
sketch16.addConstraint(Sketcher.Constraint("Coincident", 11, 2, 12, 1))
sketch16.addConstraint(Sketcher.Constraint("Coincident", 12, 2, 13, 1))
sketch16.addConstraint(Sketcher.Constraint("Coincident", 13, 2, 14, 1))
sketch16.addConstraint(Sketcher.Constraint("Coincident", 14, 2, 15, 1))
sketch16.addConstraint(Sketcher.Constraint("Coincident", 15, 2, 8, 1))
sketch16.addConstraint(Sketcher.Constraint("Vertical", 0))
sketch16.addConstraint(Sketcher.Constraint("Horizontal", 1))
sketch16.addConstraint(Sketcher.Constraint("Vertical", 2))
sketch16.addConstraint(Sketcher.Constraint("Horizontal", 3))
sketch16.addConstraint(Sketcher.Constraint("Vertical", 4))
sketch16.addConstraint(Sketcher.Constraint("Horizontal", 5))
sketch16.addConstraint(Sketcher.Constraint("Vertical", 6))
sketch16.addConstraint(Sketcher.Constraint("Horizontal", 7))
sketch16.addConstraint(Sketcher.Constraint("Vertical", 8))
sketch16.addConstraint(Sketcher.Constraint("Horizontal", 9))
sketch16.addConstraint(Sketcher.Constraint("Vertical", 10))
sketch16.addConstraint(Sketcher.Constraint("Horizontal", 11))
sketch16.addConstraint(Sketcher.Constraint("Vertical", 12))
sketch16.addConstraint(Sketcher.Constraint("Horizontal", 13))
sketch16.addConstraint(Sketcher.Constraint("Vertical", 14))
sketch16.addConstraint(Sketcher.Constraint("Horizontal", 15))
sketch16.addConstraint(Sketcher.Constraint("Horizontal", 1, 2, 8, 2))
sketch16.addConstraint(Sketcher.Constraint("Horizontal", 5, 2, 12, 2))
sketch16.addConstraint(Sketcher.Constraint("Horizontal", 3, 2, 14, 2))
sketch16.addConstraint(Sketcher.Constraint("Vertical", 2, 2, 5, 2))
sketch16.addConstraint(Sketcher.Constraint("DistanceX", 15, 2, 15, 1, 2.0))
sketch16.addConstraint(Sketcher.Constraint("DistanceX", 1, 1, 1, 2, 2.4))
sketch16.addConstraint(Sketcher.Constraint("DistanceX", 3, 2, 3, 1, 1.2))
sketch16.addConstraint(Sketcher.Constraint("DistanceX", 9, 1, 9, 2, 3.8))
sketch16.addConstraint(Sketcher.Constraint("DistanceY", 0, 2, 0, 1, 8.8))
sketch16.addConstraint(Sketcher.Constraint("DistanceY", 6, 1, 6, 2, 4.9))
sketch16.addConstraint(Sketcher.Constraint("DistanceY", 10, 1, 10, 2, 7.4))
sketch16.addConstraint(Sketcher.Constraint("DistanceX", 0, 2, -1, 1, 13.0))
sketch16.addConstraint(Sketcher.Constraint("DistanceY", 4, 2, -1, 1, 8.0))
sketch16.addConstraint(Sketcher.Constraint("DistanceX", -1, 1, 9, 2, 9.0))
sketch16.addConstraint(Sketcher.Constraint("DistanceY", 2, 1, 2, 2, 2.12))
sketch16.addConstraint(Sketcher.Constraint("DistanceX", 11, 2, 11, 1, 3.955))
pad4 = body.newObject("PartDesign::Pad", "Pad003")
pad4.Profile = sketch16
pad4.Length = 32.5

# Sketch on XY plane
sketch17 = body.newObject("Sketcher::SketchObject", "Sketch016")
sketch17.AttachmentSupport = (doc.getObject("XY_Plane"), [""])
sketch17.MapMode = "FlatFace"
sketch17.AttachmentOffset = App.Placement(App.Vector(0, 0, 20), App.Rotation())
sketch17.addGeometry(Part.LineSegment(App.Vector(13, 11.9, 0), App.Vector(10.6, 11.9, 0)), False)
sketch17.addGeometry(Part.LineSegment(App.Vector(10.6, 11.9, 0), App.Vector(10.6, 9.78, 0)), False)
sketch17.addGeometry(Part.LineSegment(App.Vector(10.6, 9.78, 0), App.Vector(11.8, 9.78, 0)), False)
sketch17.addGeometry(Part.LineSegment(App.Vector(11.8, 9.78, 0), App.Vector(11.8, 8, 0)), False)
sketch17.addGeometry(Part.LineSegment(App.Vector(11.8, 8, 0), App.Vector(10.6, 8, 0)), False)
sketch17.addGeometry(Part.LineSegment(App.Vector(10.6, 8, 0), App.Vector(10.6, 3.1, 0)), False)
sketch17.addGeometry(Part.LineSegment(App.Vector(10.6, 3.1, 0), App.Vector(13, 3.1, 0)), False)
sketch17.addGeometry(Part.LineSegment(App.Vector(13, 3.1, 0), App.Vector(13, 11.9, 0)), False)
sketch17.addGeometry(Part.LineSegment(App.Vector(-5.2, 9.78, 0), App.Vector(-5.2, 11.9, 0)), False)
sketch17.addGeometry(Part.LineSegment(App.Vector(-5.2, 11.9, 0), App.Vector(-9, 11.9, 0)), False)
sketch17.addGeometry(Part.LineSegment(App.Vector(-9, 11.9, 0), App.Vector(-9, 4.5, 0)), False)
sketch17.addGeometry(Part.LineSegment(App.Vector(-9, 4.5, 0), App.Vector(-5.045, 4.5, 0)), False)
sketch17.addGeometry(Part.LineSegment(App.Vector(-5.045, 4.5, 0), App.Vector(-5.045, 8, 0)), False)
sketch17.addGeometry(Part.LineSegment(App.Vector(-5.045, 8, 0), App.Vector(-7.2, 8, 0)), False)
sketch17.addGeometry(Part.LineSegment(App.Vector(-7.2, 8, 0), App.Vector(-7.2, 9.78, 0)), False)
sketch17.addGeometry(Part.LineSegment(App.Vector(-7.2, 9.78, 0), App.Vector(-5.2, 9.78, 0)), False)
sketch17.addConstraint(Sketcher.Constraint("Coincident", 0, 2, 1, 1))
sketch17.addConstraint(Sketcher.Constraint("Coincident", 1, 2, 2, 1))
sketch17.addConstraint(Sketcher.Constraint("Coincident", 2, 2, 3, 1))
sketch17.addConstraint(Sketcher.Constraint("Coincident", 3, 2, 4, 1))
sketch17.addConstraint(Sketcher.Constraint("Coincident", 4, 2, 5, 1))
sketch17.addConstraint(Sketcher.Constraint("Coincident", 5, 2, 6, 1))
sketch17.addConstraint(Sketcher.Constraint("Coincident", 6, 2, 7, 1))
sketch17.addConstraint(Sketcher.Constraint("Coincident", 7, 2, 0, 1))
sketch17.addConstraint(Sketcher.Constraint("Coincident", 8, 2, 9, 1))
sketch17.addConstraint(Sketcher.Constraint("Coincident", 9, 2, 10, 1))
sketch17.addConstraint(Sketcher.Constraint("Coincident", 10, 2, 11, 1))
sketch17.addConstraint(Sketcher.Constraint("Coincident", 11, 2, 12, 1))
sketch17.addConstraint(Sketcher.Constraint("Coincident", 12, 2, 13, 1))
sketch17.addConstraint(Sketcher.Constraint("Coincident", 13, 2, 14, 1))
sketch17.addConstraint(Sketcher.Constraint("Coincident", 14, 2, 15, 1))
sketch17.addConstraint(Sketcher.Constraint("Coincident", 15, 2, 8, 1))
sketch17.addConstraint(Sketcher.Constraint("Horizontal", 0))
sketch17.addConstraint(Sketcher.Constraint("Vertical", 1))
sketch17.addConstraint(Sketcher.Constraint("Horizontal", 2))
sketch17.addConstraint(Sketcher.Constraint("Vertical", 3))
sketch17.addConstraint(Sketcher.Constraint("Horizontal", 4))
sketch17.addConstraint(Sketcher.Constraint("Vertical", 5))
sketch17.addConstraint(Sketcher.Constraint("Horizontal", 6))
sketch17.addConstraint(Sketcher.Constraint("Vertical", 7))
sketch17.addConstraint(Sketcher.Constraint("Vertical", 8))
sketch17.addConstraint(Sketcher.Constraint("Horizontal", 9))
sketch17.addConstraint(Sketcher.Constraint("Vertical", 10))
sketch17.addConstraint(Sketcher.Constraint("Horizontal", 11))
sketch17.addConstraint(Sketcher.Constraint("Vertical", 12))
sketch17.addConstraint(Sketcher.Constraint("Horizontal", 13))
sketch17.addConstraint(Sketcher.Constraint("Vertical", 14))
sketch17.addConstraint(Sketcher.Constraint("Horizontal", 15))
sketch17.addConstraint(Sketcher.Constraint("Horizontal", 7, 2, 8, 2))
sketch17.addConstraint(Sketcher.Constraint("Horizontal", 4, 2, 12, 2))
sketch17.addConstraint(Sketcher.Constraint("Horizontal", 2, 2, 14, 2))
sketch17.addConstraint(Sketcher.Constraint("Vertical", 1, 2, 4, 2))
sketch17.addConstraint(Sketcher.Constraint("DistanceX", 15, 1, 15, 2, 2.0))
sketch17.addConstraint(Sketcher.Constraint("DistanceX", 0, 2, 0, 1, 2.4))
sketch17.addConstraint(Sketcher.Constraint("DistanceX", 2, 1, 2, 2, 1.2))
sketch17.addConstraint(Sketcher.Constraint("DistanceX", 9, 2, 9, 1, 3.8))
sketch17.addConstraint(Sketcher.Constraint("DistanceY", 5, 2, 5, 1, 4.9))
sketch17.addConstraint(Sketcher.Constraint("DistanceY", 7, 1, 7, 2, 8.8))
sketch17.addConstraint(Sketcher.Constraint("DistanceY", 10, 2, 10, 1, 7.4))
sketch17.addConstraint(Sketcher.Constraint("DistanceY", -1, 1, 3, 2, 8.0))
sketch17.addConstraint(Sketcher.Constraint("DistanceX", -1, 1, 6, 2, 13.0))
sketch17.addConstraint(Sketcher.Constraint("DistanceX", 9, 2, -1, 1, 9.0))
sketch17.addConstraint(Sketcher.Constraint("DistanceY", 1, 2, 1, 1, 2.12))
sketch17.addConstraint(Sketcher.Constraint("DistanceX", 11, 1, 11, 2, 3.955))
pad5 = body.newObject("PartDesign::Pad", "Pad004")
pad5.Profile = sketch17
pad5.Length = 32.5

# Sketch on XZ plane
sketch18 = body.newObject("Sketcher::SketchObject", "Sketch017")
sketch18.AttachmentSupport = (doc.getObject("XZ_Plane"), [""])
sketch18.MapMode = "FlatFace"
sketch18.AttachmentOffset = App.Placement(App.Vector(0, 0, -17.9), App.Rotation())
sketch18.addGeometry(Part.LineSegment(App.Vector(-15.2, 0, 0), App.Vector(-15.2, 20, 0)), False)
sketch18.addGeometry(Part.LineSegment(App.Vector(-15.2, 20, 0), App.Vector(-5.2, 20, 0)), False)
sketch18.addGeometry(Part.LineSegment(App.Vector(-5.2, 20, 0), App.Vector(-5.2, 0, 0)), False)
sketch18.addGeometry(Part.LineSegment(App.Vector(-5.2, 0, 0), App.Vector(-15.2, 0, 0)), False)
sketch18.addConstraint(Sketcher.Constraint("Coincident", 0, 2, 1, 1))
sketch18.addConstraint(Sketcher.Constraint("Coincident", 1, 2, 2, 1))
sketch18.addConstraint(Sketcher.Constraint("Coincident", 2, 2, 3, 1))
sketch18.addConstraint(Sketcher.Constraint("Coincident", 3, 2, 0, 1))
sketch18.addConstraint(Sketcher.Constraint("Vertical", 0))
sketch18.addConstraint(Sketcher.Constraint("Horizontal", 1))
sketch18.addConstraint(Sketcher.Constraint("Vertical", 2))
sketch18.addConstraint(Sketcher.Constraint("Horizontal", 3))
sketch18.addConstraint(Sketcher.Constraint("PointOnObject", 2, 2, -1))
sketch18.addConstraint(Sketcher.Constraint("DistanceX", 1, 1, 1, 2, 10.0))
sketch18.addConstraint(Sketcher.Constraint("DistanceY", 0, 1, 0, 2, 20.0))
sketch18.addConstraint(Sketcher.Constraint("DistanceX", 0, 2, -1, 1, 15.2))
pocket13 = body.newObject("PartDesign::Pocket", "Pocket012")
pocket13.Profile = sketch18
pocket13.Length = 6
pocket13.Reversed = True

# Sketch on XZ plane
sketch19 = body.newObject("Sketcher::SketchObject", "Sketch018")
sketch19.AttachmentSupport = (doc.getObject("XZ_Plane"), [""])
sketch19.MapMode = "FlatFace"
sketch19.AttachmentOffset = App.Placement(App.Vector(0, 0, -5.9), App.Rotation())
sketch19.addGeometry(Part.LineSegment(App.Vector(-33, 20, 0), App.Vector(-33, 0, 0)), False)
sketch19.addGeometry(Part.LineSegment(App.Vector(-33, 0, 0), App.Vector(-9, 0, 0)), False)
sketch19.addGeometry(Part.LineSegment(App.Vector(-9, 0, 0), App.Vector(-9, 20, 0)), False)
sketch19.addGeometry(Part.LineSegment(App.Vector(-9, 20, 0), App.Vector(-33, 20, 0)), False)
sketch19.addConstraint(Sketcher.Constraint("Coincident", 0, 2, 1, 1))
sketch19.addConstraint(Sketcher.Constraint("Coincident", 1, 2, 2, 1))
sketch19.addConstraint(Sketcher.Constraint("Coincident", 2, 2, 3, 1))
sketch19.addConstraint(Sketcher.Constraint("Coincident", 3, 2, 0, 1))
sketch19.addConstraint(Sketcher.Constraint("Vertical", 0))
sketch19.addConstraint(Sketcher.Constraint("Horizontal", 1))
sketch19.addConstraint(Sketcher.Constraint("Vertical", 2))
sketch19.addConstraint(Sketcher.Constraint("Horizontal", 3))
sketch19.addConstraint(Sketcher.Constraint("PointOnObject", 0, 2, -1))
sketch19.addConstraint(Sketcher.Constraint("DistanceX", 1, 1, 1, 2, 24.0))
sketch19.addConstraint(Sketcher.Constraint("DistanceY", 0, 2, 0, 1, 20.0))
sketch19.addConstraint(Sketcher.Constraint("DistanceX", 0, 2, -1, 1, 33.0))
pad6 = body.newObject("PartDesign::Pad", "Pad005")
pad6.Profile = sketch19
pad6.Length = 1.4

# Sketch on XY plane
sketch20 = body.newObject("Sketcher::SketchObject", "Sketch019")
sketch20.AttachmentSupport = (doc.getObject("XY_Plane"), [""])
sketch20.MapMode = "FlatFace"
sketch20.addGeometry(Part.Circle(App.Vector(-26.1, 11.9, 0), App.Vector(0, 0, 1), 1.45), False)
sketch20.addConstraint(Sketcher.Constraint("Diameter", 0, 2.9))
sketch20.addConstraint(Sketcher.Constraint("DistanceX", 0, 3, -1, 1, 26.1))
sketch20.addConstraint(Sketcher.Constraint("DistanceY", -1, 1, 0, 3, 11.9))
pocket14 = body.newObject("PartDesign::Pocket", "Pocket013")
pocket14.Profile = sketch20
pocket14.Length = 10
pocket14.Reversed = True

doc.recompute()
